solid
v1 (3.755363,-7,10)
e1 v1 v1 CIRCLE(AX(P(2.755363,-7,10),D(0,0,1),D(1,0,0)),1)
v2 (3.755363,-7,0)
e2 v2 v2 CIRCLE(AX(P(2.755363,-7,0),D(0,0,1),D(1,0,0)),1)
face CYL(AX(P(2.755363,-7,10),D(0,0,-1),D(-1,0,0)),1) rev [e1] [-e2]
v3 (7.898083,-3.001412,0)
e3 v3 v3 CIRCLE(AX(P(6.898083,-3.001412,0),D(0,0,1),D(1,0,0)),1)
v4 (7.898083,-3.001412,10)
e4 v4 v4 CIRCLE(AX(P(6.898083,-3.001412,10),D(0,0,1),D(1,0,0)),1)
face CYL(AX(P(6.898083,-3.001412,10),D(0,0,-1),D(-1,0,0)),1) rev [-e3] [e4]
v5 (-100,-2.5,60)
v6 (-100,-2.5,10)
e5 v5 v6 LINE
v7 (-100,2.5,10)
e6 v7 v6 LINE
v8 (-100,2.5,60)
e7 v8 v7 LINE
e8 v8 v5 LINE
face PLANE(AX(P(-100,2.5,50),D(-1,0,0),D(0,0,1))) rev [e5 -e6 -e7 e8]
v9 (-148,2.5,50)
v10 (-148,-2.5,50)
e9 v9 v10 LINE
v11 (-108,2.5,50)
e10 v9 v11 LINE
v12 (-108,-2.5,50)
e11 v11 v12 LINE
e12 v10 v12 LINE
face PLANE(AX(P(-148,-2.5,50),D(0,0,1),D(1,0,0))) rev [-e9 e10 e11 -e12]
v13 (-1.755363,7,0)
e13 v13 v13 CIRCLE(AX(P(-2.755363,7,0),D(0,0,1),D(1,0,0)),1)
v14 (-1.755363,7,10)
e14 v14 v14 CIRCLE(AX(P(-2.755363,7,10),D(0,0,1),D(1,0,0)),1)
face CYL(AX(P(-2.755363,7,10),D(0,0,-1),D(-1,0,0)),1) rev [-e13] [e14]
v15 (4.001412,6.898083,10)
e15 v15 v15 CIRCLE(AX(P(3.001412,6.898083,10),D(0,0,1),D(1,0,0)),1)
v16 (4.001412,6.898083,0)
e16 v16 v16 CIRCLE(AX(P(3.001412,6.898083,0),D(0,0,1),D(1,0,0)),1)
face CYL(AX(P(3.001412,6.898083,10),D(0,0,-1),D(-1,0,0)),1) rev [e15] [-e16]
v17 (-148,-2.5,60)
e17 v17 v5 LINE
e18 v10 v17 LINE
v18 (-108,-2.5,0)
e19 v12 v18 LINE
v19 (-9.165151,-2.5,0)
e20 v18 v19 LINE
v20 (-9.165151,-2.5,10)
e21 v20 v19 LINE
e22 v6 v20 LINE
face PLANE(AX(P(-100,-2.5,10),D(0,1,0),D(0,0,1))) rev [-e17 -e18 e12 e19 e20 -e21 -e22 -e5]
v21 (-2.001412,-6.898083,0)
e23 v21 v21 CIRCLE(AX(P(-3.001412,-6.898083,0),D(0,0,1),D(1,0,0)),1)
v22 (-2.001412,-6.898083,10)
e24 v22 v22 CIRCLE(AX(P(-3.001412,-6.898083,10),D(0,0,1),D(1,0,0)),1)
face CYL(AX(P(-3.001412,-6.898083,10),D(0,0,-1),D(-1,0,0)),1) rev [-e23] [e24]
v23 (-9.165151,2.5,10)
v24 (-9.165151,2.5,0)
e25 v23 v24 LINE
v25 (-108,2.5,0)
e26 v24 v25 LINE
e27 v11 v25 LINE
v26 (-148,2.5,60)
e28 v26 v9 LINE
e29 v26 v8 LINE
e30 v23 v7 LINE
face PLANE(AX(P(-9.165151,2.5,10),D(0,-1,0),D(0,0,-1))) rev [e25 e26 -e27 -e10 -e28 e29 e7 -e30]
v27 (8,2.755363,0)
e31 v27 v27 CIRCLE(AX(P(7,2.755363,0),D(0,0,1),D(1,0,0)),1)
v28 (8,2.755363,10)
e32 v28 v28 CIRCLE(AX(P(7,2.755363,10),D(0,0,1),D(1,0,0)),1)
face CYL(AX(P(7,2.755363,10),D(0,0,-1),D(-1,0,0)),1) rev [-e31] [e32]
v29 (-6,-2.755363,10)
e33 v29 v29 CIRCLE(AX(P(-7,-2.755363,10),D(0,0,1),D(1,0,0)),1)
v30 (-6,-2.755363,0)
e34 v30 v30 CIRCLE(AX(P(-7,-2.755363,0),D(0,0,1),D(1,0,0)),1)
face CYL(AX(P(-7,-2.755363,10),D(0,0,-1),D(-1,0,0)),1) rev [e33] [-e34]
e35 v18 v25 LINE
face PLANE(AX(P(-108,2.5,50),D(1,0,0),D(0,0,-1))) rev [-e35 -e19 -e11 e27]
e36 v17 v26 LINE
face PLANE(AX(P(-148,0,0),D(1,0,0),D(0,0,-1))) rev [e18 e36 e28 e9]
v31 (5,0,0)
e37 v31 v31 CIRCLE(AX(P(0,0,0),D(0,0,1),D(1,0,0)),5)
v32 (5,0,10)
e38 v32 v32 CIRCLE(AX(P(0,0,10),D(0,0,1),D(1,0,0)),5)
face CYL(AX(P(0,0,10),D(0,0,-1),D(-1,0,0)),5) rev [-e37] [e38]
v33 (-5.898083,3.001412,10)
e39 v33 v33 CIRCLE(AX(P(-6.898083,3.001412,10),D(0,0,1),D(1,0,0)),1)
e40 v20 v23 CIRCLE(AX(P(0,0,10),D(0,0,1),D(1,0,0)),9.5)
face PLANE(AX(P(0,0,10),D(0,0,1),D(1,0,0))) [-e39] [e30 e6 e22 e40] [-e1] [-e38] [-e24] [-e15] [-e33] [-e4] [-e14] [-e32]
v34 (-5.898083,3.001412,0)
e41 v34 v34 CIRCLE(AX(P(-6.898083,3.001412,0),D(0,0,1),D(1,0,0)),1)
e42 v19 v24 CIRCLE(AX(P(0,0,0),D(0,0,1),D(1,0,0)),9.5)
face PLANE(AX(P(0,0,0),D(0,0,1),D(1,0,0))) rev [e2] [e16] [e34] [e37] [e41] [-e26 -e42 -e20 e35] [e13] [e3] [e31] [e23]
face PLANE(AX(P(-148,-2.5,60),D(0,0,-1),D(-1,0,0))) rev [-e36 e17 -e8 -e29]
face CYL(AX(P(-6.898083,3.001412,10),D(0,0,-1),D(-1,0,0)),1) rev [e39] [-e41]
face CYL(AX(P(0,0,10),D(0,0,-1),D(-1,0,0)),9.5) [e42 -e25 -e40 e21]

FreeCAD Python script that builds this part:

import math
import FreeCAD as App
import Part
import Sketcher
from FreeCAD import Vector

doc = App.newDocument("Part")
body = doc.addObject("PartDesign::Body", "Body")

# Sketch on XY plane
sketch1 = body.newObject("Sketcher::SketchObject", "Sketch")
sketch1.AttachmentSupport = (doc.getObject("XY_Plane"), [""])
sketch1.MapMode = "FlatFace"
sketch1.addGeometry([
    Part.LineSegment(Vector(-9.2, 2.5, 0), Vector(-100, 2.5, 0)),  # 0
    Part.LineSegment(Vector(-100, 2.5, 0), Vector(-100, -2.5, 0)),  # 1
    Part.LineSegment(Vector(-100, -2.5, 0), Vector(-9.2, -2.5, 0)),  # 2
    Part.ArcOfCircle(Part.Circle(Vector(0, 0, 0), Vector(0, 0, 1), 9.5), math.radians(-165), math.radians(165)),  # 3
    Part.Circle(Vector(-3, -6.9, 0), Vector(0, 0, 1), 1),  # 4
    Part.Circle(Vector(-7, -2.8, 0), Vector(0, 0, 1), 1),  # 5
    Part.Circle(Vector(2.8, -7, 0), Vector(0, 0, 1), 1),  # 6
    Part.Circle(Vector(0, 0, 0), Vector(0, 0, 1), 5),  # 7
    Part.Circle(Vector(6.9, -3, 0), Vector(0, 0, 1), 1),  # 8
    Part.Circle(Vector(-6.9, 3, 0), Vector(0, 0, 1), 1),  # 9
    Part.Circle(Vector(-2.8, 7, 0), Vector(0, 0, 1), 1),  # 10
    Part.Circle(Vector(7, 2.8, 0), Vector(0, 0, 1), 1),  # 11
    Part.Circle(Vector(3, 6.9, 0), Vector(0, 0, 1), 1),  # 12
], False)
sketch1.addConstraint([
    Sketcher.Constraint("Coincident", 0, 2, 1, 1),
    Sketcher.Constraint("Coincident", 1, 2, 2, 1),
    Sketcher.Constraint("Coincident", 2, 2, 3, 1),
    Sketcher.Constraint("Coincident", 3, 2, 0, 1),
    Sketcher.Constraint("Horizontal", 0),
    Sketcher.Constraint("Vertical", 1),
    Sketcher.Constraint("Horizontal", 2),
    Sketcher.Constraint("Coincident", 3, 3, -1, 1),
    Sketcher.Constraint("Coincident", 7, 3, -1, 1),
    Sketcher.Constraint("Equal", 4, 5),
    Sketcher.Constraint("Equal", 5, 6),
    Sketcher.Constraint("Equal", 6, 8),
    Sketcher.Constraint("Equal", 8, 9),
    Sketcher.Constraint("Equal", 9, 10),
    Sketcher.Constraint("Equal", 10, 11),
    Sketcher.Constraint("Equal", 11, 12),
    Sketcher.Constraint("Symmetric", 8, 3, 9, 3, -1, 1),
    Sketcher.Constraint("Symmetric", 6, 3, 10, 3, -1, 1),
    Sketcher.Constraint("Symmetric", 5, 3, 11, 3, -1, 1),
    Sketcher.Constraint("Symmetric", 4, 3, 12, 3, -1, 1),
    Sketcher.Constraint("Vertical", 2, 2, 3, 2),
    Sketcher.Constraint("Diameter", 4, 2.0),
    Sketcher.Constraint("Diameter", 7, 10.0),
    Sketcher.Constraint("Radius", 3, 9.5),
    Sketcher.Constraint("DistanceY", 1, 2, 1, 1, 5.0),
    Sketcher.Constraint("DistanceX", 5, 3, -1, 1, 7.0),
    Sketcher.Constraint("DistanceY", 6, 3, -1, 1, 7.0),
    Sketcher.Constraint("DistanceX", 0, 2, -1, 1, 100.0),
    Sketcher.Constraint("DistanceX", 4, 3, -1, 1, 3.001412),
    Sketcher.Constraint("DistanceY", 8, 3, -1, 1, 3.001412),
    Sketcher.Constraint("DistanceY", 4, 3, 5, 3, 4.14272),
    Sketcher.Constraint("DistanceX", 6, 3, 8, 3, 4.14272),
    Sketcher.Constraint("DistanceY", 4, 3, 8, 3, 3.896672),
    Sketcher.Constraint("DistanceX", 9, 3, 4, 3, 3.896672),
])
pad1 = body.newObject("PartDesign::Pad", "Pad")
pad1.Profile = sketch1
pad1.Length = 10

# Sketch on XY plane
sketch2 = body.newObject("Sketcher::SketchObject", "Sketch001")
sketch2.AttachmentSupport = (doc.getObject("XY_Plane"), [""])
sketch2.MapMode = "FlatFace"
sketch2.AttachmentOffset = App.Placement(Vector(0, 0, 10), App.Rotation())
sketch2.addGeometry([
    Part.LineSegment(Vector(-108, 2, 0), Vector(-108, -2, 0)),
    Part.LineSegment(Vector(-108, -2, 0), Vector(-100, -2, 0)),
    Part.LineSegment(Vector(-100, -2, 0), Vector(-100, 2, 0)),
    Part.LineSegment(Vector(-100, 2, 0), Vector(-108, 2, 0)),
], False)
sketch2.addConstraint([
    Sketcher.Constraint("Coincident", 0, 2, 1, 1),
    Sketcher.Constraint("Coincident", 1, 2, 2, 1),
    Sketcher.Constraint("Coincident", 2, 2, 3, 1),
    Sketcher.Constraint("Coincident", 3, 2, 0, 1),
    Sketcher.Constraint("Vertical", 0),
    Sketcher.Constraint("Horizontal", 1),
    Sketcher.Constraint("Vertical", 2),
    Sketcher.Constraint("Horizontal", 3),
    Sketcher.Constraint("DistanceX", 1, 1, 1, 2, 8.0),
    Sketcher.Constraint("DistanceY", 0, 2, 0, 1, 5.0),
    Sketcher.Constraint("DistanceX", 0, 2, -1, 1, 108.0),
    Sketcher.Constraint("DistanceY", 0, 2, -1, 1, 2.5),
])
pad2 = body.newObject("PartDesign::Pad", "Pad001")
pad2.Profile = sketch2
pad2.Type = "TwoLengths"
pad2.Length = 40
pad2.Length2 = 10

# Sketch on YZ plane
sketch3 = body.newObject("Sketcher::SketchObject", "Sketch002")
sketch3.AttachmentSupport = (doc.getObject("YZ_Plane"), [""])
sketch3.MapMode = "FlatFace"
sketch3.AttachmentOffset = App.Placement(Vector(0, 0, -108), App.Rotation())
sketch3.addGeometry([
    Part.LineSegment(Vector(2, 50, 0), Vector(-2, 50, 0)),
    Part.LineSegment(Vector(-2, 50, 0), Vector(-2, 60, 0)),
    Part.LineSegment(Vector(-2, 60, 0), Vector(2, 60, 0)),
    Part.LineSegment(Vector(2, 60, 0), Vector(2, 50, 0)),
], False)
sketch3.addConstraint([
    Sketcher.Constraint("Coincident", 0, 2, 1, 1),
    Sketcher.Constraint("Coincident", 1, 2, 2, 1),
    Sketcher.Constraint("Coincident", 2, 2, 3, 1),
    Sketcher.Constraint("Coincident", 3, 2, 0, 1),
    Sketcher.Constraint("Horizontal", 0),
    Sketcher.Constraint("Vertical", 1),
    Sketcher.Constraint("Horizontal", 2),
    Sketcher.Constraint("Vertical", 3),
    Sketcher.Constraint("DistanceX", 0, 2, 0, 1, 5.0),
    Sketcher.Constraint("DistanceY", 1, 1, 1, 2, 10.0),
    Sketcher.Constraint("DistanceY", -1, 1, 0, 2, 50.0),
    Sketcher.Constraint("DistanceX", 0, 2, -1, 1, 2.5),
])
pad3 = body.newObject("PartDesign::Pad", "Pad002")
pad3.Profile = sketch3
pad3.Type = "TwoLengths"
pad3.Length = 40
pad3.Length2 = 8
pad3.Reversed = True

doc.recompute()
